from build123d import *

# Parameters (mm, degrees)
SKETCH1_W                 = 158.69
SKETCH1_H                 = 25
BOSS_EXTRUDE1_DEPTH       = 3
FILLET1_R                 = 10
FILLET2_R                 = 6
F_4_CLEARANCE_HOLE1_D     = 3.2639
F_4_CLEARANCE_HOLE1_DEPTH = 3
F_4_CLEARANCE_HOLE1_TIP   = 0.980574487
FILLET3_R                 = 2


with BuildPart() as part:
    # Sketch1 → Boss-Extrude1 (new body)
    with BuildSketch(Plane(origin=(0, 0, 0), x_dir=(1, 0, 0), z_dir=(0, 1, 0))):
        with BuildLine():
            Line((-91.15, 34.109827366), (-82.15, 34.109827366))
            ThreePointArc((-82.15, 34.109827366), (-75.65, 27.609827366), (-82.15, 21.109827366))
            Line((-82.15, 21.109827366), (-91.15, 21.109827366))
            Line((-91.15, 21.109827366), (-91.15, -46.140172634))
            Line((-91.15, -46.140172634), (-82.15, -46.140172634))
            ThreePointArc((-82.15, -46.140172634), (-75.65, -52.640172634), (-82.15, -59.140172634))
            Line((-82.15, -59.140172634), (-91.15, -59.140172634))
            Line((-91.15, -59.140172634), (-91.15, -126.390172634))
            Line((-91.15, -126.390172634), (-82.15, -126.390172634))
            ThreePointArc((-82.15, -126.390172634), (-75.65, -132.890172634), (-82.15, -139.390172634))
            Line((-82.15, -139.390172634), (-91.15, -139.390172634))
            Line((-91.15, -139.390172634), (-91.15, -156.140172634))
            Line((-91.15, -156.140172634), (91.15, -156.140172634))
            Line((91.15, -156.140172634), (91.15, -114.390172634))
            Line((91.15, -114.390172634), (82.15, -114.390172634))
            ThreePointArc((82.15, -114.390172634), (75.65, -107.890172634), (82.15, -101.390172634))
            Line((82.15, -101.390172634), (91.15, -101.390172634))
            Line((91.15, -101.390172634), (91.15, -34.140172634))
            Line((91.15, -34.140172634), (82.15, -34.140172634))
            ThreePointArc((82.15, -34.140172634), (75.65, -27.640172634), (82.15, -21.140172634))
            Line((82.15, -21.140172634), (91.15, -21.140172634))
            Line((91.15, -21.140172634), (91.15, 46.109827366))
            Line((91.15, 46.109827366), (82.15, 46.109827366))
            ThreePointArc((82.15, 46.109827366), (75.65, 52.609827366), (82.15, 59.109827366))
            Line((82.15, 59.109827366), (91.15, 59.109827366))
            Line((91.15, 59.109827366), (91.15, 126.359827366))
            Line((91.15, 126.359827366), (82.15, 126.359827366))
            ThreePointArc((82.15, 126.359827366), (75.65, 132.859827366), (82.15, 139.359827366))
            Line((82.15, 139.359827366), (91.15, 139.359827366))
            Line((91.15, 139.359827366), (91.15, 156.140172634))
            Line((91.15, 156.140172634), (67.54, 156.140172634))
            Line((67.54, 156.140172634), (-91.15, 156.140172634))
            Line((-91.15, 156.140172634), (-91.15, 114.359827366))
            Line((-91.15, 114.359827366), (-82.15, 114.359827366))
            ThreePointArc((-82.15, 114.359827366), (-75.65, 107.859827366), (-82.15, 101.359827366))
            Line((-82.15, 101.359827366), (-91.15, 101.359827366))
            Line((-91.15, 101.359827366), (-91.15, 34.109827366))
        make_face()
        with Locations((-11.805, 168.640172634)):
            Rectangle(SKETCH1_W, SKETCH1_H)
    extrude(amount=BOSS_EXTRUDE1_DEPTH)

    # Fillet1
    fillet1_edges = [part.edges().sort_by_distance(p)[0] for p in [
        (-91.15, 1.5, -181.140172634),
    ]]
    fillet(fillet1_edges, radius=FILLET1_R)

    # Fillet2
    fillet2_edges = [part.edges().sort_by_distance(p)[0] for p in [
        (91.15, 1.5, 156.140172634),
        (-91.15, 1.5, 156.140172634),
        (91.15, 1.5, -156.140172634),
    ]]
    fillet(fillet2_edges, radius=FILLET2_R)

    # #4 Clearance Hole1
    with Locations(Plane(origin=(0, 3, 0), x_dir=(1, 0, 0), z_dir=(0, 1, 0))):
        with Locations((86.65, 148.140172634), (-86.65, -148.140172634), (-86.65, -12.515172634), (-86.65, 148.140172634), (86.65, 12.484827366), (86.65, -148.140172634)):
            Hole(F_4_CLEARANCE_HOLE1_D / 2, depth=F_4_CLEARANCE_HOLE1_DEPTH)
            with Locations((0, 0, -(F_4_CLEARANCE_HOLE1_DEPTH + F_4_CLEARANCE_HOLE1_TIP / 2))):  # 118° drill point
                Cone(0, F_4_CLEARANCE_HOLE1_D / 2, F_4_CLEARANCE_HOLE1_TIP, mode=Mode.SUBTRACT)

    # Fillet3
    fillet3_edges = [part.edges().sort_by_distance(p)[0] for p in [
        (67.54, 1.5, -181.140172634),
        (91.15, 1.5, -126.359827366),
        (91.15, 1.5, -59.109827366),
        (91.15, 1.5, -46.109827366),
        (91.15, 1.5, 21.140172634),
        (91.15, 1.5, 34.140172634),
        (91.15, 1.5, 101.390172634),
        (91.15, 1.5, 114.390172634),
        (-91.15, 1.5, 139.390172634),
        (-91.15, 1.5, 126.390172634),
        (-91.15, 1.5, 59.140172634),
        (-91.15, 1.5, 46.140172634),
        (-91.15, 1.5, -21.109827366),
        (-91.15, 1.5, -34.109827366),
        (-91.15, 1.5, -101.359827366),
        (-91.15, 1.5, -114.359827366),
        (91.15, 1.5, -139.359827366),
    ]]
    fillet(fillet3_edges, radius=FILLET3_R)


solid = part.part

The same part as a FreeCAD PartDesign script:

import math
import FreeCAD as App
import Part
import Sketcher
from FreeCAD import Vector


def edges_at(feature, points):
    """Names of the edges that pass closest to the given points."""
    edges = feature.Shape.Edges
    near = lambda p: min(range(len(edges)), key=lambda i: edges[i].distToShape(Part.Vertex(*p))[0])
    return sorted({f"Edge{near(p) + 1}" for p in points})

doc = App.newDocument("Part")
body = doc.addObject("PartDesign::Body", "Body")

# Sketch on XZ plane
sketch1 = body.newObject("Sketcher::SketchObject", "Sketch")
sketch1.AttachmentSupport = (doc.getObject("XZ_Plane"), [""])
sketch1.MapMode = "FlatFace"
sketch1.addGeometry([
    Part.LineSegment(Vector(-91, -34, 0), Vector(-82, -34, 0)),  # 0
    Part.ArcOfCircle(Part.Circle(Vector(-82, -28, 0), Vector(0, 0, 1), 6), math.radians(-90), math.radians(90)),  # 1
    Part.LineSegment(Vector(-82, -21, 0), Vector(-91, -21, 0)),  # 2
    Part.LineSegment(Vector(-91, -21, 0), Vector(-91, 46, 0)),  # 3
    Part.LineSegment(Vector(-91, 46, 0), Vector(-82, 46, 0)),  # 4
    Part.ArcOfCircle(Part.Circle(Vector(-82, 53, 0), Vector(0, 0, 1), 6), math.radians(-90), math.radians(90)),  # 5
    Part.LineSegment(Vector(-82, 59, 0), Vector(-91, 59, 0)),  # 6
    Part.LineSegment(Vector(-91, 59, 0), Vector(-91, 126, 0)),  # 7
    Part.LineSegment(Vector(-91, 126, 0), Vector(-82, 126, 0)),  # 8
    Part.ArcOfCircle(Part.Circle(Vector(-82, 133, 0), Vector(0, 0, 1), 6), math.radians(-90), math.radians(90)),  # 9
    Part.LineSegment(Vector(-82, 139, 0), Vector(-91, 139, 0)),  # 10
    Part.LineSegment(Vector(-91, 139, 0), Vector(-91, 156, 0)),  # 11
    Part.LineSegment(Vector(-91, 156, 0), Vector(91, 156, 0)),  # 12
    Part.LineSegment(Vector(91, 156, 0), Vector(91, 114, 0)),  # 13
    Part.LineSegment(Vector(91, 114, 0), Vector(82, 114, 0)),  # 14
    Part.ArcOfCircle(Part.Circle(Vector(82, 108, 0), Vector(0, 0, 1), 6), math.radians(90), math.radians(270)),  # 15
    Part.LineSegment(Vector(82, 101, 0), Vector(91, 101, 0)),  # 16
    Part.LineSegment(Vector(91, 101, 0), Vector(91, 34, 0)),  # 17
    Part.LineSegment(Vector(91, 34, 0), Vector(82, 34, 0)),  # 18
    Part.ArcOfCircle(Part.Circle(Vector(82, 28, 0), Vector(0, 0, 1), 6), math.radians(90), math.radians(270)),  # 19
    Part.LineSegment(Vector(82, 21, 0), Vector(91, 21, 0)),  # 20
    Part.LineSegment(Vector(91, 21, 0), Vector(91, -46, 0)),  # 21
    Part.LineSegment(Vector(91, -46, 0), Vector(82, -46, 0)),  # 22
    Part.ArcOfCircle(Part.Circle(Vector(82, -53, 0), Vector(0, 0, 1), 6), math.radians(90), math.radians(270)),  # 23
    Part.LineSegment(Vector(82, -59, 0), Vector(91, -59, 0)),  # 24
    Part.LineSegment(Vector(91, -59, 0), Vector(91, -126, 0)),  # 25
    Part.LineSegment(Vector(91, -126, 0), Vector(82, -126, 0)),  # 26
    Part.ArcOfCircle(Part.Circle(Vector(82, -133, 0), Vector(0, 0, 1), 6), math.radians(90), math.radians(270)),  # 27
    Part.LineSegment(Vector(82, -139, 0), Vector(91, -139, 0)),  # 28
    Part.LineSegment(Vector(91, -139, 0), Vector(91, -156, 0)),  # 29
    Part.LineSegment(Vector(91, -156, 0), Vector(68, -156, 0)),  # 30
    Part.LineSegment(Vector(68, -156, 0), Vector(68, -181, 0)),  # 31
    Part.LineSegment(Vector(68, -181, 0), Vector(-91, -181, 0)),  # 32
    Part.LineSegment(Vector(-91, -181, 0), Vector(-91, -114, 0)),  # 33
    Part.LineSegment(Vector(-91, -114, 0), Vector(-82, -114, 0)),  # 34
    Part.ArcOfCircle(Part.Circle(Vector(-82, -108, 0), Vector(0, 0, 1), 6), math.radians(-90), math.radians(90)),  # 35
    Part.LineSegment(Vector(-82, -101, 0), Vector(-91, -101, 0)),  # 36
    Part.LineSegment(Vector(-91, -101, 0), Vector(-91, -34, 0)),  # 37
], False)
sketch1.addConstraint([
    Sketcher.Constraint("Tangent", 0, 2, 1, 1),
    Sketcher.Constraint("Tangent", 1, 2, 2, 1),
    Sketcher.Constraint("Coincident", 2, 2, 3, 1),
    Sketcher.Constraint("Coincident", 3, 2, 4, 1),
    Sketcher.Constraint("Tangent", 4, 2, 5, 1),
    Sketcher.Constraint("Tangent", 5, 2, 6, 1),
    Sketcher.Constraint("Coincident", 6, 2, 7, 1),
    Sketcher.Constraint("Coincident", 7, 2, 8, 1),
    Sketcher.Constraint("Tangent", 8, 2, 9, 1),
    Sketcher.Constraint("Tangent", 9, 2, 10, 1),
    Sketcher.Constraint("Coincident", 10, 2, 11, 1),
    Sketcher.Constraint("Coincident", 11, 2, 12, 1),
    Sketcher.Constraint("Coincident", 12, 2, 13, 1),
    Sketcher.Constraint("Coincident", 13, 2, 14, 1),
    Sketcher.Constraint("Tangent", 14, 2, 15, 1),
    Sketcher.Constraint("Tangent", 15, 2, 16, 1),
    Sketcher.Constraint("Coincident", 16, 2, 17, 1),
    Sketcher.Constraint("Coincident", 17, 2, 18, 1),
    Sketcher.Constraint("Tangent", 18, 2, 19, 1),
    Sketcher.Constraint("Tangent", 19, 2, 20, 1),
    Sketcher.Constraint("Coincident", 20, 2, 21, 1),
    Sketcher.Constraint("Coincident", 21, 2, 22, 1),
    Sketcher.Constraint("Tangent", 22, 2, 23, 1),
    Sketcher.Constraint("Tangent", 23, 2, 24, 1),
    Sketcher.Constraint("Coincident", 24, 2, 25, 1),
    Sketcher.Constraint("Coincident", 25, 2, 26, 1),
    Sketcher.Constraint("Tangent", 26, 2, 27, 1),
    Sketcher.Constraint("Tangent", 27, 2, 28, 1),
    Sketcher.Constraint("Coincident", 28, 2, 29, 1),
    Sketcher.Constraint("Coincident", 29, 2, 30, 1),
    Sketcher.Constraint("Coincident", 30, 2, 31, 1),
    Sketcher.Constraint("Coincident", 31, 2, 32, 1),
    Sketcher.Constraint("Coincident", 32, 2, 33, 1),
    Sketcher.Constraint("Coincident", 33, 2, 34, 1),
    Sketcher.Constraint("Tangent", 34, 2, 35, 1),
    Sketcher.Constraint("Tangent", 35, 2, 36, 1),
    Sketcher.Constraint("Coincident", 36, 2, 37, 1),
    Sketcher.Constraint("Coincident", 37, 2, 0, 1),
    Sketcher.Constraint("Horizontal", 0),
    Sketcher.Constraint("Horizontal", 2),
    Sketcher.Constraint("Vertical", 3),
    Sketcher.Constraint("Horizontal", 4),
    Sketcher.Constraint("Horizontal", 6),
    Sketcher.Constraint("Vertical", 7),
    Sketcher.Constraint("Horizontal", 8),
    Sketcher.Constraint("Horizontal", 10),
    Sketcher.Constraint("Vertical", 11),
    Sketcher.Constraint("Horizontal", 12),
    Sketcher.Constraint("Vertical", 13),
    Sketcher.Constraint("Horizontal", 14),
    Sketcher.Constraint("Horizontal", 16),
    Sketcher.Constraint("Vertical", 17),
    Sketcher.Constraint("Horizontal", 18),
    Sketcher.Constraint("Horizontal", 20),
    Sketcher.Constraint("Vertical", 21),
    Sketcher.Constraint("Horizontal", 22),
    Sketcher.Constraint("Horizontal", 24),
    Sketcher.Constraint("Vertical", 25),
    Sketcher.Constraint("Horizontal", 26),
    Sketcher.Constraint("Horizontal", 28),
    Sketcher.Constraint("Vertical", 29),
    Sketcher.Constraint("Horizontal", 30),
    Sketcher.Constraint("Vertical", 31),
    Sketcher.Constraint("Horizontal", 32),
    Sketcher.Constraint("Vertical", 33),
    Sketcher.Constraint("Horizontal", 34),
    Sketcher.Constraint("Horizontal", 36),
    Sketcher.Constraint("Vertical", 37),
    Sketcher.Constraint("Equal", 1, 5),
    Sketcher.Constraint("Equal", 5, 9),
    Sketcher.Constraint("Equal", 9, 15),
    Sketcher.Constraint("Equal", 15, 19),
    Sketcher.Constraint("Equal", 19, 23),
    Sketcher.Constraint("Equal", 23, 27),
    Sketcher.Constraint("Equal", 27, 35),
    Sketcher.Constraint("Symmetric", 11, 2, 29, 2, -1, 1),
    Sketcher.Constraint("Vertical", 1, 3, 5, 3),
    Sketcher.Constraint("Vertical", 5, 3, 9, 3),
    Sketcher.Constraint("Vertical", 15, 3, 19, 3),
    Sketcher.Constraint("Vertical", 19, 3, 23, 3),
    Sketcher.Constraint("Vertical", 23, 3, 27, 3),
    Sketcher.Constraint("Vertical", 9, 3, 35, 3),
    Sketcher.Constraint("Vertical", 3, 2, 6, 2),
    Sketcher.Constraint("Vertical", 7, 2, 10, 2),
    Sketcher.Constraint("Vertical", 13, 2, 16, 2),
    Sketcher.Constraint("Vertical", 17, 2, 20, 2),
    Sketcher.Constraint("Vertical", 21, 2, 24, 2),
    Sketcher.Constraint("Vertical", 25, 2, 28, 2),
    Sketcher.Constraint("Vertical", 11, 2, 32, 2),
    Sketcher.Constraint("Vertical", 33, 2, 36, 2),
    Sketcher.Constraint("Equal", 10, 14),
    Sketcher.Constraint("Equal", 3, 7),
    Sketcher.Constraint("Equal", 7, 17),
    Sketcher.Constraint("Equal", 17, 21),
    Sketcher.Constraint("Equal", 21, 25),
    Sketcher.Constraint("Equal", 25, 37),
    Sketcher.Constraint("Radius", 1, 6.5),
    Sketcher.Constraint("DistanceX", 0, 1, 0, 2, 9.0),
    Sketcher.Constraint("DistanceY", 31, 2, 31, 1, 25.0),
    Sketcher.Constraint("DistanceX", 12, 1, 12, 2, 182.3),
    Sketcher.Constraint("DistanceY", 15, 3, 9, 3, 25.0),
    Sketcher.Constraint("DistanceY", 0, 2, 9, 3, 167.0),
    Sketcher.Constraint("DistanceX", 30, 2, 30, 1, 23.61),
    Sketcher.Constraint("DistanceY", 11, 1, 11, 2, 16.75),
    Sketcher.Constraint("DistanceY", 29, 2, 29, 1, 16.780345),
])
pad1 = body.newObject("PartDesign::Pad", "Pad")
pad1.Profile = sketch1
pad1.Length = 3
pad1.Reversed = True
doc.recompute()

fillet = body.newObject("PartDesign::Fillet", "Fillet")
fillet.Base = (pad1, edges_at(pad1, [(-91.15, 1.5, -181.14)]))
fillet.Radius = 10
doc.recompute()

fillet2 = body.newObject("PartDesign::Fillet", "Fillet001")
fillet2.Base = (fillet, edges_at(fillet, [(91.15, 1.5, 156.14), (-91.15, 1.5, 156.14), (91.15, 1.5, -156.14)]))
fillet2.Radius = 6

# Sketch on XZ plane
sketch2 = body.newObject("Sketcher::SketchObject", "Sketch001")
sketch2.AttachmentSupport = (doc.getObject("XZ_Plane"), [""])
sketch2.MapMode = "FlatFace"
sketch2.AttachmentOffset = App.Placement(Vector(0, 0, -3), App.Rotation())
sketch2.addGeometry([
    Part.Circle(Vector(86.7, -148.1, 0), Vector(0, 0, 1), 1.6),  # 0
    Part.Circle(Vector(-86.7, 148.1, 0), Vector(0, 0, 1), 1.6),  # 1
    Part.Circle(Vector(-86.7, 12.5, 0), Vector(0, 0, 1), 1.6),  # 2
    Part.Circle(Vector(-86.7, -148.1, 0), Vector(0, 0, 1), 1.6),  # 3
    Part.Circle(Vector(86.7, -12.5, 0), Vector(0, 0, 1), 1.6),  # 4
    Part.Circle(Vector(86.7, 148.1, 0), Vector(0, 0, 1), 1.6),  # 5
], False)
sketch2.addConstraint([
    Sketcher.Constraint("Equal", 0, 1),
    Sketcher.Constraint("Equal", 1, 2),
    Sketcher.Constraint("Equal", 2, 3),
    Sketcher.Constraint("Equal", 3, 4),
    Sketcher.Constraint("Equal", 4, 5),
    Sketcher.Constraint("Symmetric", 0, 3, 1, 3, -1, 1),
    Sketcher.Constraint("Symmetric", 3, 3, 5, 3, -1, 1),
    Sketcher.Constraint("Symmetric", 0, 3, 3, 3, -2),
    Sketcher.Constraint("Vertical", 1, 3, 2, 3),
    Sketcher.Constraint("Vertical", 0, 3, 4, 3),
    Sketcher.Constraint("DistanceY", 4, 3, 2, 3, 25.0),
    Sketcher.Constraint("Diameter", 0, 3.2639),
    Sketcher.Constraint("DistanceX", 1, 3, 0, 3, 173.3),
    Sketcher.Constraint("DistanceY", 2, 3, 1, 3, 135.625),
    Sketcher.Constraint("DistanceY", 0, 3, -1, 1, 148.140173),
])
doc.recompute()
hole = body.newObject("PartDesign::Hole", "Hole")
hole.Profile = sketch2
hole.ThreadType = "None"
hole.Diameter = 3.2639
hole.DepthType = "Dimension"
hole.Depth = 3
hole.DrillPoint = "Angled"
hole.DrillPointAngle = 118
hole.Reversed = True
doc.recompute()

fillet3 = body.newObject("PartDesign::Fillet", "Fillet002")
fillet3.Base = (hole, edges_at(hole, [
    (67.54, 1.5, -181.14),
    (91.15, 1.5, -126.36),
    (91.15, 1.5, -59.11),
    (91.15, 1.5, -46.11),
    (91.15, 1.5, 21.14),
    (91.15, 1.5, 34.14),
    (91.15, 1.5, 101.39),
    (91.15, 1.5, 114.39),
    (-91.15, 1.5, 139.39),
    (-91.15, 1.5, 126.39),
    (-91.15, 1.5, 59.14),
    (-91.15, 1.5, 46.14),
    (-91.15, 1.5, -21.11),
    (-91.15, 1.5, -34.11),
    (-91.15, 1.5, -101.36),
    (-91.15, 1.5, -114.36),
    (91.15, 1.5, -139.36),
]))
fillet3.Radius = 2

doc.recompute()
